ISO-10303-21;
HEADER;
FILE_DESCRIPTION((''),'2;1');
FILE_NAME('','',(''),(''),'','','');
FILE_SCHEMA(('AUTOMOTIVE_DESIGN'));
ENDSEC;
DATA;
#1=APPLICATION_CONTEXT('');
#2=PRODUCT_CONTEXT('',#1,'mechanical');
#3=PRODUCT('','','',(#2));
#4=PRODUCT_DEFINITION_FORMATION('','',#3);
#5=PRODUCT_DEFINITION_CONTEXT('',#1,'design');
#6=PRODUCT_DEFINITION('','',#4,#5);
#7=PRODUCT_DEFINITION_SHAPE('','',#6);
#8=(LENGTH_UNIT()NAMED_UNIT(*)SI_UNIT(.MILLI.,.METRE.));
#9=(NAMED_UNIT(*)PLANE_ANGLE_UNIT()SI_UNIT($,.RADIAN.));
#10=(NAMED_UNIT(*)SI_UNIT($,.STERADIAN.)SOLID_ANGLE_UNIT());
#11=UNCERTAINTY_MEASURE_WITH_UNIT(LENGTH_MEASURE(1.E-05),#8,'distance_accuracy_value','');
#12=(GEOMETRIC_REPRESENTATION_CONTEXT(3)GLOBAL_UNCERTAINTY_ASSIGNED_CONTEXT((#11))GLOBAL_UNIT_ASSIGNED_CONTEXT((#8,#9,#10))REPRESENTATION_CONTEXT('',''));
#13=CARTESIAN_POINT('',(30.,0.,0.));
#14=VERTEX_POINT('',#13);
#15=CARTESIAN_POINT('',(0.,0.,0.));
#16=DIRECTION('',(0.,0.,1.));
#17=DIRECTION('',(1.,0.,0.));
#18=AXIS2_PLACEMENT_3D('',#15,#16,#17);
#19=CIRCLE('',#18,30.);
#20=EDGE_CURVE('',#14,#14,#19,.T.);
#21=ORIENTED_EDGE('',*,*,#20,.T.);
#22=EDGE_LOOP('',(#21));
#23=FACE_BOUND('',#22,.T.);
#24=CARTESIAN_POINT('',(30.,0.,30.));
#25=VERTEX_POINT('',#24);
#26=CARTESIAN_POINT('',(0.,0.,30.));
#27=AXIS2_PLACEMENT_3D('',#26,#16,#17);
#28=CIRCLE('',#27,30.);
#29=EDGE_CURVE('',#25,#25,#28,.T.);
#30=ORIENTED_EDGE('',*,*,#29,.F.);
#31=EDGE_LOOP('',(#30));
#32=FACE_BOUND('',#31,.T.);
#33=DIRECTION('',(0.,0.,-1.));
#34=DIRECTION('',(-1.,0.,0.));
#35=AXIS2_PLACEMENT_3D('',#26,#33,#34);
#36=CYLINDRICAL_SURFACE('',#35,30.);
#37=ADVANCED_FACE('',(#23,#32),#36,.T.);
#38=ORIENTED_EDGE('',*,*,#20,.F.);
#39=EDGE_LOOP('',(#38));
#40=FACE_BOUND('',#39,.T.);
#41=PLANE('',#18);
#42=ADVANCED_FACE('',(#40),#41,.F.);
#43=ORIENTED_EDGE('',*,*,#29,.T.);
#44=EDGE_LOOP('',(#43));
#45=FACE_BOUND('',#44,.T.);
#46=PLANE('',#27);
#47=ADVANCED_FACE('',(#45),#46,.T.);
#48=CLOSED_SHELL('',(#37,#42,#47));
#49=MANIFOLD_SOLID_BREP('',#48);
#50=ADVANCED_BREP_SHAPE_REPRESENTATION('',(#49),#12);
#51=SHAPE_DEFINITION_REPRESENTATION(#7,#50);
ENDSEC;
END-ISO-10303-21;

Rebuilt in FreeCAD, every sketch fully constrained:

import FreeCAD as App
import Part
import Sketcher

doc = App.newDocument("Part")
params = doc.addObject("Spreadsheet::Sheet", "Params")
for row, (alias, value) in enumerate([
    ("sketch1_diameter", "60 mm"),
    ("pad1_length", "30 mm"),
], start=1):
    params.set(f"A{row}", alias)
    params.set(f"B{row}", "=" + value)
    params.setAlias(f"B{row}", alias)

body = doc.addObject("PartDesign::Body", "Body")

sketch1 = body.newObject("Sketcher::SketchObject", "Sketch")
sketch1.AttachmentSupport = (doc.getObject("XY_Plane"), [""])
sketch1.MapMode = "FlatFace"
sketch1.addGeometry(Part.Circle(App.Vector(0, 0, 0), App.Vector(0, 0, 1), 30), False)
sketch1.addConstraint([
    Sketcher.Constraint("Coincident", 0, 3, -1, 1),
    Sketcher.Constraint("Diameter", 0, 60.0),
])
sketch1.setExpression("Constraints[1]", "Params.sketch1_diameter")
pad1 = body.newObject("PartDesign::Pad", "Pad")
pad1.Profile = sketch1
pad1.setExpression("Length", "Params.pad1_length")

doc.recompute()
